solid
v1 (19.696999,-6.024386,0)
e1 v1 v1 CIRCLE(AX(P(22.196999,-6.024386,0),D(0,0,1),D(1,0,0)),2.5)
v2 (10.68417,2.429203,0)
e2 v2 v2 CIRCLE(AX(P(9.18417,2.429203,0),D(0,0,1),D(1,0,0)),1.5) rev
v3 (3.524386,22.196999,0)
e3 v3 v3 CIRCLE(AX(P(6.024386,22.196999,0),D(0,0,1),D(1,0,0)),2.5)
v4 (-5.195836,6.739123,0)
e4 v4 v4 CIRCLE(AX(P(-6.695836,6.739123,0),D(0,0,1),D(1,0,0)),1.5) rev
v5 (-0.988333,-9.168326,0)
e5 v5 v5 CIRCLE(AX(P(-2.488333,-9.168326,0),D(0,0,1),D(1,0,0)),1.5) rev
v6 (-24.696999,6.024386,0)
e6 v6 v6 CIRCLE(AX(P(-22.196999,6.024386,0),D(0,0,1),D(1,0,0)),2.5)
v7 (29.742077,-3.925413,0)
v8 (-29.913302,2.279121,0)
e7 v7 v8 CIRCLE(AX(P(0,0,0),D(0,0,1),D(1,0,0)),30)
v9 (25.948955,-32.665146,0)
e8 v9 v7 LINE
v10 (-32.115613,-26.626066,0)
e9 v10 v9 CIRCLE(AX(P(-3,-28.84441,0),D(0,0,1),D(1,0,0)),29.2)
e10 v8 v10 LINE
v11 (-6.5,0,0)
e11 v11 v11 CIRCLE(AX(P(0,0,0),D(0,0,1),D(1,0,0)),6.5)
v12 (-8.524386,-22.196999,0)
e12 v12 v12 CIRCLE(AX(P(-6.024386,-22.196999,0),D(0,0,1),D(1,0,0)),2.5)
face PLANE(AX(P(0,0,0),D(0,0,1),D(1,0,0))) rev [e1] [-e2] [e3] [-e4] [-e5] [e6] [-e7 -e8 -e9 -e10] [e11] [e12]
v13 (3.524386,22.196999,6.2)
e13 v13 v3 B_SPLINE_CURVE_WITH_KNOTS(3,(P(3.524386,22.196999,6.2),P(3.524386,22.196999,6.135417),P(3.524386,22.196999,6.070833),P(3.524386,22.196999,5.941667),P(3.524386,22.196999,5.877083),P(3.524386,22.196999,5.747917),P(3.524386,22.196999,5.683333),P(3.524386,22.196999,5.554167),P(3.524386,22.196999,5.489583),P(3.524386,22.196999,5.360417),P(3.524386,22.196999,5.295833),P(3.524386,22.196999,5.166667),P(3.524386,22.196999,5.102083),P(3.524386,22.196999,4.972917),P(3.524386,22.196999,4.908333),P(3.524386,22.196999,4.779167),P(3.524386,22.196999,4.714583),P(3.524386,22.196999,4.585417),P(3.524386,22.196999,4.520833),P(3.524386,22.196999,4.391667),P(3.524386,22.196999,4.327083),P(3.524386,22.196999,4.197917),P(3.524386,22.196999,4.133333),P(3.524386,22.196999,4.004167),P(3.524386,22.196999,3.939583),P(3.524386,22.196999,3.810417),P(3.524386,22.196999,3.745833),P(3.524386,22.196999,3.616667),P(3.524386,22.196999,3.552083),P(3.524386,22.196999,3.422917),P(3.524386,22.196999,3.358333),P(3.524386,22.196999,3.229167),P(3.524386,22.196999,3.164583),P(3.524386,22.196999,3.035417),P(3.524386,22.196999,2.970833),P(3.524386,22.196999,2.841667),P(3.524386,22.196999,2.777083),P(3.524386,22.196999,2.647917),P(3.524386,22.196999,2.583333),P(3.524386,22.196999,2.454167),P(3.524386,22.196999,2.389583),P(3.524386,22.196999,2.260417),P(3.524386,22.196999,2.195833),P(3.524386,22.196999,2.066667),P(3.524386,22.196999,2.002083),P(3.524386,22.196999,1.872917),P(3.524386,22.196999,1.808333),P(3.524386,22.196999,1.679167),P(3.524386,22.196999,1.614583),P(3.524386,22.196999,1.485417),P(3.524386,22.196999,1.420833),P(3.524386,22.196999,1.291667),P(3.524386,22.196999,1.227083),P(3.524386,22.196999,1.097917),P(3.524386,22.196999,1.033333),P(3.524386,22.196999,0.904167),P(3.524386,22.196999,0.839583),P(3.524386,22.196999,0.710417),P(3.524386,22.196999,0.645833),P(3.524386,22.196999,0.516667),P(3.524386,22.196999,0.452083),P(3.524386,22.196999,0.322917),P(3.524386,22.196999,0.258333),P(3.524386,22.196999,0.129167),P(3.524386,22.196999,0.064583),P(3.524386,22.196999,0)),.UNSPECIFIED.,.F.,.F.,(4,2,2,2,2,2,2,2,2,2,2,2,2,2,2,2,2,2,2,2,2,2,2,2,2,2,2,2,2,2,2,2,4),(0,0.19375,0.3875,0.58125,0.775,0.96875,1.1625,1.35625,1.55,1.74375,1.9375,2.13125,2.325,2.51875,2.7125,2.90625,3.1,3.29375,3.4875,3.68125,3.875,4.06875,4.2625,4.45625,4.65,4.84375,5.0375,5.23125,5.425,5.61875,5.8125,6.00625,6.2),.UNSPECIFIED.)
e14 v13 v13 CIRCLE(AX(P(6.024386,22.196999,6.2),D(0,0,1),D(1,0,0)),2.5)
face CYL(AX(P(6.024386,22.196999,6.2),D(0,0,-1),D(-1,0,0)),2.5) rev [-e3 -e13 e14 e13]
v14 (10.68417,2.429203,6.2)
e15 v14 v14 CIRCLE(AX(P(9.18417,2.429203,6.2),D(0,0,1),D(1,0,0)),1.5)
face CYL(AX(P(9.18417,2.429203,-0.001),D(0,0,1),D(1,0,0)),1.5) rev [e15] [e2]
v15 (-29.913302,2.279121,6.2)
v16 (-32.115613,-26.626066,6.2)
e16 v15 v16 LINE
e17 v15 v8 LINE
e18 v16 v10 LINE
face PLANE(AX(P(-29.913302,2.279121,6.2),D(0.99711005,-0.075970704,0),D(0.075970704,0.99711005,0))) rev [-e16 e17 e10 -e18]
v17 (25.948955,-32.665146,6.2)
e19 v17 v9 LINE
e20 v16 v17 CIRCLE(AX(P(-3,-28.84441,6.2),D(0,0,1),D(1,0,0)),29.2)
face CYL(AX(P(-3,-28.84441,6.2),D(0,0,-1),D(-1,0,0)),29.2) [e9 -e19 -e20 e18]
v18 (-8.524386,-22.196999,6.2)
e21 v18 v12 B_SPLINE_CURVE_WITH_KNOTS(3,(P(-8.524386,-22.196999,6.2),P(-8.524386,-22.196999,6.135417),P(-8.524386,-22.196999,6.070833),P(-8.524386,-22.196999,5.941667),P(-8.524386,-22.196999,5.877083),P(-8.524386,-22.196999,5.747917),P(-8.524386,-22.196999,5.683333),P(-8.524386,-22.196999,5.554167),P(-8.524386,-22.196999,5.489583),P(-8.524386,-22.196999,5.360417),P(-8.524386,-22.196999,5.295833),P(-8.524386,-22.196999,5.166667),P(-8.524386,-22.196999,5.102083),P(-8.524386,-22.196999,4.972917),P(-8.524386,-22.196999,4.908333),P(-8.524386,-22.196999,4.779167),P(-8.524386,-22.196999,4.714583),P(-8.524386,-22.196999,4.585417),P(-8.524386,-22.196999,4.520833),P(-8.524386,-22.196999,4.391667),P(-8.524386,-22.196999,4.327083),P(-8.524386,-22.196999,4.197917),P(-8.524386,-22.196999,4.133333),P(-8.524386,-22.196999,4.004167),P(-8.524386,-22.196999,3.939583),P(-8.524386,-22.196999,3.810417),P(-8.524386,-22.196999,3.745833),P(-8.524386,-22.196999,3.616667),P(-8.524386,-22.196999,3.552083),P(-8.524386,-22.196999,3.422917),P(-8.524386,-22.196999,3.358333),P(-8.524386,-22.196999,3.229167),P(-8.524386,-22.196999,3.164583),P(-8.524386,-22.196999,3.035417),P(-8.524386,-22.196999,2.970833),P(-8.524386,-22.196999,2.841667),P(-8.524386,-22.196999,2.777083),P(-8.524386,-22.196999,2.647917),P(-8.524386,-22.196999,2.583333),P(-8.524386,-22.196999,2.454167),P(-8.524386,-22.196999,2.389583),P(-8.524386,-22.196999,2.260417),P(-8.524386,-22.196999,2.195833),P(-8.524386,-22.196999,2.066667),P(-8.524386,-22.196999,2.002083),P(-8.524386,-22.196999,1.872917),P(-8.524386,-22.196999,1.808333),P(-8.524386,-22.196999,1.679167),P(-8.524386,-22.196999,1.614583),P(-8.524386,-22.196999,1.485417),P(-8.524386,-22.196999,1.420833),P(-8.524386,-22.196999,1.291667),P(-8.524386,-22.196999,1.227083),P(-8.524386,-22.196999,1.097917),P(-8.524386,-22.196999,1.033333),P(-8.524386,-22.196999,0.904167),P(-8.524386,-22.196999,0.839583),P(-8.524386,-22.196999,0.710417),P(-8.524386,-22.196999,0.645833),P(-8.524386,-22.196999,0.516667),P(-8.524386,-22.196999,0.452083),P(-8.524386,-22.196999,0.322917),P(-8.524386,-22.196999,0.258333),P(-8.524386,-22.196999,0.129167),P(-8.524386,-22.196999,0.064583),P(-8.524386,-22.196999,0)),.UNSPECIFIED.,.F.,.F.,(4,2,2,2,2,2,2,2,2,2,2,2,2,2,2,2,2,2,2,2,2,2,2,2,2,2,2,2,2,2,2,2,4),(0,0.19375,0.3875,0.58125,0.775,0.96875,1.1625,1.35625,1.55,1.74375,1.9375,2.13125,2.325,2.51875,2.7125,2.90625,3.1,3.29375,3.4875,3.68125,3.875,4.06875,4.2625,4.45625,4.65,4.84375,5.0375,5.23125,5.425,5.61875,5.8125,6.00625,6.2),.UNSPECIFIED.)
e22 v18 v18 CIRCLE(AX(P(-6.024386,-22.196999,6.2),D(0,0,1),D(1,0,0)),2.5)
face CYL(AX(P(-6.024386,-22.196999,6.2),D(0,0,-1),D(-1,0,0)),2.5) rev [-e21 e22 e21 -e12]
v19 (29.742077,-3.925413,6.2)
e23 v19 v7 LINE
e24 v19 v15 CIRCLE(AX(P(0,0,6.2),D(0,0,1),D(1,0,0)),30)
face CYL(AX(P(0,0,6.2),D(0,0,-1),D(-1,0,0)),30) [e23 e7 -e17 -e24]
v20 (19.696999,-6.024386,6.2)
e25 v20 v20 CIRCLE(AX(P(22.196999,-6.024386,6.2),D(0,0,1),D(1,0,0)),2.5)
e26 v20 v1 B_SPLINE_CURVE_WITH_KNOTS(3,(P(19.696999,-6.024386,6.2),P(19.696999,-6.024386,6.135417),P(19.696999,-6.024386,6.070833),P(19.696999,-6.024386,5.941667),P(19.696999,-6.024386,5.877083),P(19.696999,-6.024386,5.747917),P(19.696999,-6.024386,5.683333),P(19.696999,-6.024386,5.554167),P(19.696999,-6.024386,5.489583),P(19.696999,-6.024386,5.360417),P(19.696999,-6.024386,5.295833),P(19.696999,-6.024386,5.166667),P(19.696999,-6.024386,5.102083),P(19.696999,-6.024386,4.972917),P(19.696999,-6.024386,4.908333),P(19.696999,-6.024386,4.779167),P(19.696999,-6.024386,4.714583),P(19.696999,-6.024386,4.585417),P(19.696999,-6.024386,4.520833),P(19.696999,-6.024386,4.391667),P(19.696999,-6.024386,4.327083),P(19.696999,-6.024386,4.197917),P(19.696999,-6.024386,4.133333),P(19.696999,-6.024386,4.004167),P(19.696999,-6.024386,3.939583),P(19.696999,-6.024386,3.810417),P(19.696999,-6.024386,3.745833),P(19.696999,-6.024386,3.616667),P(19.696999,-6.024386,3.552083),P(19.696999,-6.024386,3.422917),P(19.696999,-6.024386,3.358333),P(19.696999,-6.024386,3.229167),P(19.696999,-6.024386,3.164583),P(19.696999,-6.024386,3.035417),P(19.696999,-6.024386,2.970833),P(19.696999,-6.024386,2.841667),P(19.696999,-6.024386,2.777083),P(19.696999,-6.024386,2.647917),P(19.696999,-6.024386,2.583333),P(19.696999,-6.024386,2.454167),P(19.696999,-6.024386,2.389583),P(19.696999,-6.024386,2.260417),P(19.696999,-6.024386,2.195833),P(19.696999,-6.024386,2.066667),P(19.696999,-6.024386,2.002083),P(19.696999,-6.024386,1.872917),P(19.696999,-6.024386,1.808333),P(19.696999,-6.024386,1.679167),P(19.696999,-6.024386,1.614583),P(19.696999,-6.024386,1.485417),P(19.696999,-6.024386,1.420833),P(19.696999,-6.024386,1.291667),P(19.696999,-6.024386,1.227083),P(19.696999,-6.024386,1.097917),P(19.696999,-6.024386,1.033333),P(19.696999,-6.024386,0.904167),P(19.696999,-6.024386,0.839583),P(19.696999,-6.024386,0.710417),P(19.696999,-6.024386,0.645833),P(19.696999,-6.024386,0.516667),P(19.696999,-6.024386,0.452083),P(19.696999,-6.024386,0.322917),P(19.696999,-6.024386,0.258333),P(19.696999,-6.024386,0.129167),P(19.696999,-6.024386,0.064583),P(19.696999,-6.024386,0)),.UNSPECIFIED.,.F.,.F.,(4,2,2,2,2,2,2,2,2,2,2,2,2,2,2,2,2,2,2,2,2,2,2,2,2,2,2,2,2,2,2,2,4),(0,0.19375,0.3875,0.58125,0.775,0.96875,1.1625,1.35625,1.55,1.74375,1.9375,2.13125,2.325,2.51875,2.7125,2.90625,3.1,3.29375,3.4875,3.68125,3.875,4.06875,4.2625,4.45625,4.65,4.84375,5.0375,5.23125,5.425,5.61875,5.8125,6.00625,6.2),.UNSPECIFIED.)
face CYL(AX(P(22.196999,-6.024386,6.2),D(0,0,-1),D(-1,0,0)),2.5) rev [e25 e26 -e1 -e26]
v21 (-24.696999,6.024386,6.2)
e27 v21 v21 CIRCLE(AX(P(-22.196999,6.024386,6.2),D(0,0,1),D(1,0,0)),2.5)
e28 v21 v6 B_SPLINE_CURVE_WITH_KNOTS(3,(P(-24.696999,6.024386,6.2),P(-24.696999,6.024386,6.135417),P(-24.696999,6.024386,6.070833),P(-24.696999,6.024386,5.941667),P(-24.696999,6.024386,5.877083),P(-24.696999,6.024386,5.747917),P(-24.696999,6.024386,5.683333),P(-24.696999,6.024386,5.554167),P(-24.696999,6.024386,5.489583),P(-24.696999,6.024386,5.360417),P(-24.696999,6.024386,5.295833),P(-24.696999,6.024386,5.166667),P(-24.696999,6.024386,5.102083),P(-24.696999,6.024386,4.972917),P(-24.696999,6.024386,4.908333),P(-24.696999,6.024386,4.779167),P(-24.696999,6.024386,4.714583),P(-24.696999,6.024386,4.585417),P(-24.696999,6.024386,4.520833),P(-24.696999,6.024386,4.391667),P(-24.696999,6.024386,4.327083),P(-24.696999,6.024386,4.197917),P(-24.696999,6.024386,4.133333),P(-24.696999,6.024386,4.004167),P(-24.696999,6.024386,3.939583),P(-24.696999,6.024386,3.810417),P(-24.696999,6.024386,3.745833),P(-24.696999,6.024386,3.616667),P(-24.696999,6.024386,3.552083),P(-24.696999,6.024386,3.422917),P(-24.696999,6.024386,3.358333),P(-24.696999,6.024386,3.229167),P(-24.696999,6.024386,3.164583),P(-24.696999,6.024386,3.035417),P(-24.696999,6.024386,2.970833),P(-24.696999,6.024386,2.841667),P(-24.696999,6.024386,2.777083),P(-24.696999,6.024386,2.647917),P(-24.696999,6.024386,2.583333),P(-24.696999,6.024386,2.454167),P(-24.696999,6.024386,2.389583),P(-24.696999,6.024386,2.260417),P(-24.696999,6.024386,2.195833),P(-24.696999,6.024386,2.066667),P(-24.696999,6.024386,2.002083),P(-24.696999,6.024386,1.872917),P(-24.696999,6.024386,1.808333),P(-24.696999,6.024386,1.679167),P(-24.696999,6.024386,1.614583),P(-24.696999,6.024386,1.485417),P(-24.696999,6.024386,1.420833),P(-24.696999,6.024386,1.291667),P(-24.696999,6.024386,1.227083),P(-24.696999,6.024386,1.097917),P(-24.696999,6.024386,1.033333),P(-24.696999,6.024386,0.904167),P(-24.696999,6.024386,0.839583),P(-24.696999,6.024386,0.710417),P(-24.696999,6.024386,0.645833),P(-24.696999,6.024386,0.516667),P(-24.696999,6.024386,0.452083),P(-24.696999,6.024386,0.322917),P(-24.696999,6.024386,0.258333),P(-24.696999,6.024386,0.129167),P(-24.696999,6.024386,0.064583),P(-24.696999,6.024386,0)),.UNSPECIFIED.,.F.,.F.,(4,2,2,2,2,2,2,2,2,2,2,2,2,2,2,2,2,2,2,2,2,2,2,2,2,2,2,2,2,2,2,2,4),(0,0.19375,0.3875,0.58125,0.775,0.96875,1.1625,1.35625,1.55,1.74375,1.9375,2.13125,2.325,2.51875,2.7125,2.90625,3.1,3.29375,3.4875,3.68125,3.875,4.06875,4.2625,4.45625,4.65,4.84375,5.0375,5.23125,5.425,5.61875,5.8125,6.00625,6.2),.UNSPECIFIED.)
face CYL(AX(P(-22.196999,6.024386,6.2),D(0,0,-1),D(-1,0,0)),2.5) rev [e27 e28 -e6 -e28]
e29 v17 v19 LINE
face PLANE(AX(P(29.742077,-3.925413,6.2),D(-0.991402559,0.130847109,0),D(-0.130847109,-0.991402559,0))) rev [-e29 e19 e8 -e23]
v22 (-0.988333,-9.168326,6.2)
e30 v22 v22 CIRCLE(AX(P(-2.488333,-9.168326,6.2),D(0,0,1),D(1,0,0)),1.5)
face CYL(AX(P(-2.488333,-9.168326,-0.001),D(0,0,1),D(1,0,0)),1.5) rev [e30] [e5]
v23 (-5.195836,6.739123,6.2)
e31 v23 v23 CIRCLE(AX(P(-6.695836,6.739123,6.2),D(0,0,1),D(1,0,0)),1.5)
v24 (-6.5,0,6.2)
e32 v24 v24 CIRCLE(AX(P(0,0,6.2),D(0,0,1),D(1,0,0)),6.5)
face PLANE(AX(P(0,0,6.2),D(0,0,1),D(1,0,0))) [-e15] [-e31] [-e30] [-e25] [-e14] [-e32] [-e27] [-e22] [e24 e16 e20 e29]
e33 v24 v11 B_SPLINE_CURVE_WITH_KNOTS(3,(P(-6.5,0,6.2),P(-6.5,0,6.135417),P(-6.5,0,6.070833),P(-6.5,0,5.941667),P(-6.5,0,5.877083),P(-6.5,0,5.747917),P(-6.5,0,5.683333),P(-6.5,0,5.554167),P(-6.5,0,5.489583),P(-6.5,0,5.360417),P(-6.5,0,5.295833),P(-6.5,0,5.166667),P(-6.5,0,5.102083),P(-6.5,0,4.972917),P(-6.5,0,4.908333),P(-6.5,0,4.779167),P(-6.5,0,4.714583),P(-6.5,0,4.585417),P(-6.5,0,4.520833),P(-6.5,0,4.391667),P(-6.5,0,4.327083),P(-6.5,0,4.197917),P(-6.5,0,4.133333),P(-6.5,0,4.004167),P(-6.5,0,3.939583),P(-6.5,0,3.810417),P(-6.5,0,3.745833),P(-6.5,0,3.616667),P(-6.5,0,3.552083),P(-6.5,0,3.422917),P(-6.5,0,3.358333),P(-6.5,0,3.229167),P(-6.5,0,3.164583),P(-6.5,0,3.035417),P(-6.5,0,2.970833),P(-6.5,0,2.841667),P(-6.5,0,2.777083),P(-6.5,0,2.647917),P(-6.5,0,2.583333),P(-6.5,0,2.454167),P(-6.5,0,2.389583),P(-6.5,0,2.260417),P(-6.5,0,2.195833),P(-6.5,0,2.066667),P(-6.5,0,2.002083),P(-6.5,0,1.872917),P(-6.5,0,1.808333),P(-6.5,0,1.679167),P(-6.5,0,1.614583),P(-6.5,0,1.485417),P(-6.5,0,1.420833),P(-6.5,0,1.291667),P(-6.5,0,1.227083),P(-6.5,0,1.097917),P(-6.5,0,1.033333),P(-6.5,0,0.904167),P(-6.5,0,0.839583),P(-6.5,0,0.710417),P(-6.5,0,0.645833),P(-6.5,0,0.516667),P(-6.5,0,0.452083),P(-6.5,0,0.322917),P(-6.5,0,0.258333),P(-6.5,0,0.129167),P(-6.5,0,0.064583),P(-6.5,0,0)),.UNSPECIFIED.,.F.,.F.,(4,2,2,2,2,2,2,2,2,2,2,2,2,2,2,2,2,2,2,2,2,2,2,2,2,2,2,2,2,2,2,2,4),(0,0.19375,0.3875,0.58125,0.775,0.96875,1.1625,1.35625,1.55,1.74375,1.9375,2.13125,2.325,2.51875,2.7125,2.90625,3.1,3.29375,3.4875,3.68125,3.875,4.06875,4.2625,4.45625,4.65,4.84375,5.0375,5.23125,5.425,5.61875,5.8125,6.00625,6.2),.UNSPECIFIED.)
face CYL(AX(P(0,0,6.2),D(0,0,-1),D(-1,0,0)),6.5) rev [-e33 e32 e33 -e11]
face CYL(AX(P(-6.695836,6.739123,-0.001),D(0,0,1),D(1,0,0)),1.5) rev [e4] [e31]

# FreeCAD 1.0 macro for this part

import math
import FreeCAD as App
import Part
import Sketcher
Q = App.Units.Quantity

doc = App.newDocument("Part")
body = doc.addObject("PartDesign::Body", "Body")

# Sketch on XY plane
sketch1 = body.newObject("Sketcher::SketchObject", "Sketch")
sketch1.AttachmentSupport = (doc.getObject("XY_Plane"), [""])
sketch1.MapMode = "FlatFace"
sketch1.addGeometry(Part.LineSegment(App.Vector(25.9, -32.7, 0), App.Vector(29.7, -3.9, 0)), False)
sketch1.addGeometry(Part.ArcOfCircle(Part.Circle(App.Vector(0, 0, 0), App.Vector(0, 0, 1), 30), math.radians(-8), math.radians(176)), False)
sketch1.addGeometry(Part.LineSegment(App.Vector(-29.9, 2.3, 0), App.Vector(-32.1, -26.6, 0)), False)
sketch1.addGeometry(Part.ArcOfCircle(Part.Circle(App.Vector(-3, -28.8, 0), App.Vector(0, 0, 1), 29.2), math.radians(176), math.radians(352)), False)
sketch1.addGeometry(Part.Circle(App.Vector(-6, -22.2, 0), App.Vector(0, 0, 1), 2.5), False)
sketch1.addGeometry(Part.Circle(App.Vector(0, 0, 0), App.Vector(0, 0, 1), 6.5), False)
sketch1.addGeometry(Part.Circle(App.Vector(22.2, -6, 0), App.Vector(0, 0, 1), 2.5), False)
sketch1.addGeometry(Part.Circle(App.Vector(-22.2, 6, 0), App.Vector(0, 0, 1), 2.5), False)
sketch1.addGeometry(Part.Circle(App.Vector(6, 22.2, 0), App.Vector(0, 0, 1), 2.5), False)
sketch1.addConstraint(Sketcher.Constraint("Tangent", 0, 2, 1, 1))
sketch1.addConstraint(Sketcher.Constraint("Tangent", 1, 2, 2, 1))
sketch1.addConstraint(Sketcher.Constraint("Tangent", 2, 2, 3, 1))
sketch1.addConstraint(Sketcher.Constraint("Tangent", 3, 2, 0, 1))
sketch1.addConstraint(Sketcher.Constraint("Coincident", 1, 3, -1, 1))
sketch1.addConstraint(Sketcher.Constraint("Coincident", 5, 3, -1, 1))
sketch1.addConstraint(Sketcher.Constraint("Equal", 4, 6))
sketch1.addConstraint(Sketcher.Constraint("Equal", 6, 7))
sketch1.addConstraint(Sketcher.Constraint("Equal", 7, 8))
sketch1.addConstraint(Sketcher.Constraint("Symmetric", 6, 3, 7, 3, -1, 1))
sketch1.addConstraint(Sketcher.Constraint("Symmetric", 4, 3, 8, 3, -1, 1))
sketch1.addConstraint(Sketcher.Constraint("Diameter", 4, Q("5 mm")))
sketch1.addConstraint(Sketcher.Constraint("Diameter", 5, Q("13 mm")))
sketch1.addConstraint(Sketcher.Constraint("Radius", 1, Q("30 mm")))
sketch1.addConstraint(Sketcher.Constraint("Radius", 3, Q("29.2 mm")))
sketch1.addConstraint(Sketcher.Constraint("DistanceX", 3, 3, -1, 1, Q("3 mm")))
sketch1.addConstraint(Sketcher.Constraint("DistanceY", 4, 3, -1, 1, Q("22.196999 mm")))
sketch1.addConstraint(Sketcher.Constraint("DistanceX", -1, 1, 6, 3, Q("22.196999 mm")))
sketch1.addConstraint(Sketcher.Constraint("DistanceY", 3, 3, -1, 1, Q("28.84441 mm")))
sketch1.addConstraint(Sketcher.Constraint("DistanceY", 6, 3, 7, 3, Q("12.048772 mm")))
sketch1.addConstraint(Sketcher.Constraint("DistanceX", 4, 3, 8, 3, Q("12.048772 mm")))
pad1 = body.newObject("PartDesign::Pad", "Pad")
pad1.Profile = sketch1
pad1.Length = 6.2

# Sketch on XY plane
sketch2 = body.newObject("Sketcher::SketchObject", "Sketch001")
sketch2.AttachmentSupport = (doc.getObject("XY_Plane"), [""])
sketch2.MapMode = "FlatFace"
sketch2.AttachmentOffset = App.Placement(App.Vector(0, 0, 6.2), App.Rotation())
sketch2.addGeometry(Part.Circle(App.Vector(9.2, 2.4, 0), App.Vector(0, 0, 1), 1.5), False)
sketch2.addConstraint(Sketcher.Constraint("Diameter", 0, Q("3 mm")))
sketch2.addConstraint(Sketcher.Constraint("DistanceX", -1, 1, 0, 3, Q("9.18417 mm")))
sketch2.addConstraint(Sketcher.Constraint("DistanceY", -1, 1, 0, 3, Q("2.429203 mm")))
pocket1 = body.newObject("PartDesign::Pocket", "Pocket")
pocket1.Profile = sketch2
pocket1.Type = "UpToFirst"

# Sketch on XY plane
sketch3 = body.newObject("Sketcher::SketchObject", "Sketch002")
sketch3.AttachmentSupport = (doc.getObject("XY_Plane"), [""])
sketch3.MapMode = "FlatFace"
sketch3.AttachmentOffset = App.Placement(App.Vector(0, 0, 6.2), App.Rotation())
sketch3.addGeometry(Part.Circle(App.Vector(-6.7, 6.7, 0), App.Vector(0, 0, 1), 1.5), False)
sketch3.addConstraint(Sketcher.Constraint("Diameter", 0, Q("3 mm")))
sketch3.addConstraint(Sketcher.Constraint("DistanceX", 0, 3, -1, 1, Q("6.695836 mm")))
sketch3.addConstraint(Sketcher.Constraint("DistanceY", -1, 1, 0, 3, Q("6.739123 mm")))
pocket2 = body.newObject("PartDesign::Pocket", "Pocket001")
pocket2.Profile = sketch3
pocket2.Type = "UpToFirst"

# Sketch on XY plane
sketch4 = body.newObject("Sketcher::SketchObject", "Sketch003")
sketch4.AttachmentSupport = (doc.getObject("XY_Plane"), [""])
sketch4.MapMode = "FlatFace"
sketch4.AttachmentOffset = App.Placement(App.Vector(0, 0, 6.2), App.Rotation())
sketch4.addGeometry(Part.Circle(App.Vector(-2.5, -9.2, 0), App.Vector(0, 0, 1), 1.5), False)
sketch4.addConstraint(Sketcher.Constraint("Diameter", 0, Q("3 mm")))
sketch4.addConstraint(Sketcher.Constraint("DistanceX", 0, 3, -1, 1, Q("2.488333 mm")))
sketch4.addConstraint(Sketcher.Constraint("DistanceY", 0, 3, -1, 1, Q("9.168326 mm")))
pocket3 = body.newObject("PartDesign::Pocket", "Pocket002")
pocket3.Profile = sketch4
pocket3.Type = "UpToFirst"

doc.recompute()
